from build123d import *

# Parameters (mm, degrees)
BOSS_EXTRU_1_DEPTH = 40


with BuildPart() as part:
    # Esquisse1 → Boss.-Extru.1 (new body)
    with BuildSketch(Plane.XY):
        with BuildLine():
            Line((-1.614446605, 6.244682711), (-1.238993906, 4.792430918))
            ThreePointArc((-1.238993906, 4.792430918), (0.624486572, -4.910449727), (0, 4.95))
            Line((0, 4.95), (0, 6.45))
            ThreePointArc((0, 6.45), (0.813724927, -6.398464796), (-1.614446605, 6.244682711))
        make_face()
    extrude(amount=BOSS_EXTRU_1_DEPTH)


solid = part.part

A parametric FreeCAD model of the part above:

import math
import FreeCAD as App
import Part
import Sketcher
from FreeCAD import Vector

doc = App.newDocument("Part")
body = doc.addObject("PartDesign::Body", "Body")

# Sketch on XY plane
sketch1 = body.newObject("Sketcher::SketchObject", "Sketch")
sketch1.AttachmentSupport = (doc.getObject("XY_Plane"), [""])
sketch1.MapMode = "FlatFace"
sketch1.addGeometry([
    Part.LineSegment(Vector(-1.2, 4.8, 0), Vector(-1.6, 6.2, 0)),
    Part.ArcOfCircle(Part.Circle(Vector(0, 0, 0), Vector(0, 0, 1), 6.5), math.radians(104), math.radians(450)),
    Part.LineSegment(Vector(0, 6.5, 0), Vector(0, 5, 0)),
    Part.ArcOfCircle(Part.Circle(Vector(0, 0, 0), Vector(0, 0, 1), 5), math.radians(104), math.radians(450)),
], False)
sketch1.addConstraint([
    Sketcher.Constraint("Coincident", 0, 2, 1, 1),
    Sketcher.Constraint("Coincident", 1, 2, 2, 1),
    Sketcher.Constraint("Coincident", 2, 2, 3, 2),
    Sketcher.Constraint("Coincident", 3, 1, 0, 1),
    Sketcher.Constraint("Vertical", 2),
    Sketcher.Constraint("Coincident", 1, 3, -1, 1),
    Sketcher.Constraint("Coincident", 3, 3, -1, 1),
    Sketcher.Constraint("PointOnObject", 1, 2, -2),
    Sketcher.Constraint("Radius", 1, 6.45),
    Sketcher.Constraint("Radius", 3, 4.95),
    Sketcher.Constraint("DistanceY", -1, 1, 3, 1, 4.792431),
    Sketcher.Constraint("DistanceY", 3, 1, 0, 2, 1.452252),
])
pad1 = body.newObject("PartDesign::Pad", "Pad")
pad1.Profile = sketch1
pad1.Length = 40

doc.recompute()
